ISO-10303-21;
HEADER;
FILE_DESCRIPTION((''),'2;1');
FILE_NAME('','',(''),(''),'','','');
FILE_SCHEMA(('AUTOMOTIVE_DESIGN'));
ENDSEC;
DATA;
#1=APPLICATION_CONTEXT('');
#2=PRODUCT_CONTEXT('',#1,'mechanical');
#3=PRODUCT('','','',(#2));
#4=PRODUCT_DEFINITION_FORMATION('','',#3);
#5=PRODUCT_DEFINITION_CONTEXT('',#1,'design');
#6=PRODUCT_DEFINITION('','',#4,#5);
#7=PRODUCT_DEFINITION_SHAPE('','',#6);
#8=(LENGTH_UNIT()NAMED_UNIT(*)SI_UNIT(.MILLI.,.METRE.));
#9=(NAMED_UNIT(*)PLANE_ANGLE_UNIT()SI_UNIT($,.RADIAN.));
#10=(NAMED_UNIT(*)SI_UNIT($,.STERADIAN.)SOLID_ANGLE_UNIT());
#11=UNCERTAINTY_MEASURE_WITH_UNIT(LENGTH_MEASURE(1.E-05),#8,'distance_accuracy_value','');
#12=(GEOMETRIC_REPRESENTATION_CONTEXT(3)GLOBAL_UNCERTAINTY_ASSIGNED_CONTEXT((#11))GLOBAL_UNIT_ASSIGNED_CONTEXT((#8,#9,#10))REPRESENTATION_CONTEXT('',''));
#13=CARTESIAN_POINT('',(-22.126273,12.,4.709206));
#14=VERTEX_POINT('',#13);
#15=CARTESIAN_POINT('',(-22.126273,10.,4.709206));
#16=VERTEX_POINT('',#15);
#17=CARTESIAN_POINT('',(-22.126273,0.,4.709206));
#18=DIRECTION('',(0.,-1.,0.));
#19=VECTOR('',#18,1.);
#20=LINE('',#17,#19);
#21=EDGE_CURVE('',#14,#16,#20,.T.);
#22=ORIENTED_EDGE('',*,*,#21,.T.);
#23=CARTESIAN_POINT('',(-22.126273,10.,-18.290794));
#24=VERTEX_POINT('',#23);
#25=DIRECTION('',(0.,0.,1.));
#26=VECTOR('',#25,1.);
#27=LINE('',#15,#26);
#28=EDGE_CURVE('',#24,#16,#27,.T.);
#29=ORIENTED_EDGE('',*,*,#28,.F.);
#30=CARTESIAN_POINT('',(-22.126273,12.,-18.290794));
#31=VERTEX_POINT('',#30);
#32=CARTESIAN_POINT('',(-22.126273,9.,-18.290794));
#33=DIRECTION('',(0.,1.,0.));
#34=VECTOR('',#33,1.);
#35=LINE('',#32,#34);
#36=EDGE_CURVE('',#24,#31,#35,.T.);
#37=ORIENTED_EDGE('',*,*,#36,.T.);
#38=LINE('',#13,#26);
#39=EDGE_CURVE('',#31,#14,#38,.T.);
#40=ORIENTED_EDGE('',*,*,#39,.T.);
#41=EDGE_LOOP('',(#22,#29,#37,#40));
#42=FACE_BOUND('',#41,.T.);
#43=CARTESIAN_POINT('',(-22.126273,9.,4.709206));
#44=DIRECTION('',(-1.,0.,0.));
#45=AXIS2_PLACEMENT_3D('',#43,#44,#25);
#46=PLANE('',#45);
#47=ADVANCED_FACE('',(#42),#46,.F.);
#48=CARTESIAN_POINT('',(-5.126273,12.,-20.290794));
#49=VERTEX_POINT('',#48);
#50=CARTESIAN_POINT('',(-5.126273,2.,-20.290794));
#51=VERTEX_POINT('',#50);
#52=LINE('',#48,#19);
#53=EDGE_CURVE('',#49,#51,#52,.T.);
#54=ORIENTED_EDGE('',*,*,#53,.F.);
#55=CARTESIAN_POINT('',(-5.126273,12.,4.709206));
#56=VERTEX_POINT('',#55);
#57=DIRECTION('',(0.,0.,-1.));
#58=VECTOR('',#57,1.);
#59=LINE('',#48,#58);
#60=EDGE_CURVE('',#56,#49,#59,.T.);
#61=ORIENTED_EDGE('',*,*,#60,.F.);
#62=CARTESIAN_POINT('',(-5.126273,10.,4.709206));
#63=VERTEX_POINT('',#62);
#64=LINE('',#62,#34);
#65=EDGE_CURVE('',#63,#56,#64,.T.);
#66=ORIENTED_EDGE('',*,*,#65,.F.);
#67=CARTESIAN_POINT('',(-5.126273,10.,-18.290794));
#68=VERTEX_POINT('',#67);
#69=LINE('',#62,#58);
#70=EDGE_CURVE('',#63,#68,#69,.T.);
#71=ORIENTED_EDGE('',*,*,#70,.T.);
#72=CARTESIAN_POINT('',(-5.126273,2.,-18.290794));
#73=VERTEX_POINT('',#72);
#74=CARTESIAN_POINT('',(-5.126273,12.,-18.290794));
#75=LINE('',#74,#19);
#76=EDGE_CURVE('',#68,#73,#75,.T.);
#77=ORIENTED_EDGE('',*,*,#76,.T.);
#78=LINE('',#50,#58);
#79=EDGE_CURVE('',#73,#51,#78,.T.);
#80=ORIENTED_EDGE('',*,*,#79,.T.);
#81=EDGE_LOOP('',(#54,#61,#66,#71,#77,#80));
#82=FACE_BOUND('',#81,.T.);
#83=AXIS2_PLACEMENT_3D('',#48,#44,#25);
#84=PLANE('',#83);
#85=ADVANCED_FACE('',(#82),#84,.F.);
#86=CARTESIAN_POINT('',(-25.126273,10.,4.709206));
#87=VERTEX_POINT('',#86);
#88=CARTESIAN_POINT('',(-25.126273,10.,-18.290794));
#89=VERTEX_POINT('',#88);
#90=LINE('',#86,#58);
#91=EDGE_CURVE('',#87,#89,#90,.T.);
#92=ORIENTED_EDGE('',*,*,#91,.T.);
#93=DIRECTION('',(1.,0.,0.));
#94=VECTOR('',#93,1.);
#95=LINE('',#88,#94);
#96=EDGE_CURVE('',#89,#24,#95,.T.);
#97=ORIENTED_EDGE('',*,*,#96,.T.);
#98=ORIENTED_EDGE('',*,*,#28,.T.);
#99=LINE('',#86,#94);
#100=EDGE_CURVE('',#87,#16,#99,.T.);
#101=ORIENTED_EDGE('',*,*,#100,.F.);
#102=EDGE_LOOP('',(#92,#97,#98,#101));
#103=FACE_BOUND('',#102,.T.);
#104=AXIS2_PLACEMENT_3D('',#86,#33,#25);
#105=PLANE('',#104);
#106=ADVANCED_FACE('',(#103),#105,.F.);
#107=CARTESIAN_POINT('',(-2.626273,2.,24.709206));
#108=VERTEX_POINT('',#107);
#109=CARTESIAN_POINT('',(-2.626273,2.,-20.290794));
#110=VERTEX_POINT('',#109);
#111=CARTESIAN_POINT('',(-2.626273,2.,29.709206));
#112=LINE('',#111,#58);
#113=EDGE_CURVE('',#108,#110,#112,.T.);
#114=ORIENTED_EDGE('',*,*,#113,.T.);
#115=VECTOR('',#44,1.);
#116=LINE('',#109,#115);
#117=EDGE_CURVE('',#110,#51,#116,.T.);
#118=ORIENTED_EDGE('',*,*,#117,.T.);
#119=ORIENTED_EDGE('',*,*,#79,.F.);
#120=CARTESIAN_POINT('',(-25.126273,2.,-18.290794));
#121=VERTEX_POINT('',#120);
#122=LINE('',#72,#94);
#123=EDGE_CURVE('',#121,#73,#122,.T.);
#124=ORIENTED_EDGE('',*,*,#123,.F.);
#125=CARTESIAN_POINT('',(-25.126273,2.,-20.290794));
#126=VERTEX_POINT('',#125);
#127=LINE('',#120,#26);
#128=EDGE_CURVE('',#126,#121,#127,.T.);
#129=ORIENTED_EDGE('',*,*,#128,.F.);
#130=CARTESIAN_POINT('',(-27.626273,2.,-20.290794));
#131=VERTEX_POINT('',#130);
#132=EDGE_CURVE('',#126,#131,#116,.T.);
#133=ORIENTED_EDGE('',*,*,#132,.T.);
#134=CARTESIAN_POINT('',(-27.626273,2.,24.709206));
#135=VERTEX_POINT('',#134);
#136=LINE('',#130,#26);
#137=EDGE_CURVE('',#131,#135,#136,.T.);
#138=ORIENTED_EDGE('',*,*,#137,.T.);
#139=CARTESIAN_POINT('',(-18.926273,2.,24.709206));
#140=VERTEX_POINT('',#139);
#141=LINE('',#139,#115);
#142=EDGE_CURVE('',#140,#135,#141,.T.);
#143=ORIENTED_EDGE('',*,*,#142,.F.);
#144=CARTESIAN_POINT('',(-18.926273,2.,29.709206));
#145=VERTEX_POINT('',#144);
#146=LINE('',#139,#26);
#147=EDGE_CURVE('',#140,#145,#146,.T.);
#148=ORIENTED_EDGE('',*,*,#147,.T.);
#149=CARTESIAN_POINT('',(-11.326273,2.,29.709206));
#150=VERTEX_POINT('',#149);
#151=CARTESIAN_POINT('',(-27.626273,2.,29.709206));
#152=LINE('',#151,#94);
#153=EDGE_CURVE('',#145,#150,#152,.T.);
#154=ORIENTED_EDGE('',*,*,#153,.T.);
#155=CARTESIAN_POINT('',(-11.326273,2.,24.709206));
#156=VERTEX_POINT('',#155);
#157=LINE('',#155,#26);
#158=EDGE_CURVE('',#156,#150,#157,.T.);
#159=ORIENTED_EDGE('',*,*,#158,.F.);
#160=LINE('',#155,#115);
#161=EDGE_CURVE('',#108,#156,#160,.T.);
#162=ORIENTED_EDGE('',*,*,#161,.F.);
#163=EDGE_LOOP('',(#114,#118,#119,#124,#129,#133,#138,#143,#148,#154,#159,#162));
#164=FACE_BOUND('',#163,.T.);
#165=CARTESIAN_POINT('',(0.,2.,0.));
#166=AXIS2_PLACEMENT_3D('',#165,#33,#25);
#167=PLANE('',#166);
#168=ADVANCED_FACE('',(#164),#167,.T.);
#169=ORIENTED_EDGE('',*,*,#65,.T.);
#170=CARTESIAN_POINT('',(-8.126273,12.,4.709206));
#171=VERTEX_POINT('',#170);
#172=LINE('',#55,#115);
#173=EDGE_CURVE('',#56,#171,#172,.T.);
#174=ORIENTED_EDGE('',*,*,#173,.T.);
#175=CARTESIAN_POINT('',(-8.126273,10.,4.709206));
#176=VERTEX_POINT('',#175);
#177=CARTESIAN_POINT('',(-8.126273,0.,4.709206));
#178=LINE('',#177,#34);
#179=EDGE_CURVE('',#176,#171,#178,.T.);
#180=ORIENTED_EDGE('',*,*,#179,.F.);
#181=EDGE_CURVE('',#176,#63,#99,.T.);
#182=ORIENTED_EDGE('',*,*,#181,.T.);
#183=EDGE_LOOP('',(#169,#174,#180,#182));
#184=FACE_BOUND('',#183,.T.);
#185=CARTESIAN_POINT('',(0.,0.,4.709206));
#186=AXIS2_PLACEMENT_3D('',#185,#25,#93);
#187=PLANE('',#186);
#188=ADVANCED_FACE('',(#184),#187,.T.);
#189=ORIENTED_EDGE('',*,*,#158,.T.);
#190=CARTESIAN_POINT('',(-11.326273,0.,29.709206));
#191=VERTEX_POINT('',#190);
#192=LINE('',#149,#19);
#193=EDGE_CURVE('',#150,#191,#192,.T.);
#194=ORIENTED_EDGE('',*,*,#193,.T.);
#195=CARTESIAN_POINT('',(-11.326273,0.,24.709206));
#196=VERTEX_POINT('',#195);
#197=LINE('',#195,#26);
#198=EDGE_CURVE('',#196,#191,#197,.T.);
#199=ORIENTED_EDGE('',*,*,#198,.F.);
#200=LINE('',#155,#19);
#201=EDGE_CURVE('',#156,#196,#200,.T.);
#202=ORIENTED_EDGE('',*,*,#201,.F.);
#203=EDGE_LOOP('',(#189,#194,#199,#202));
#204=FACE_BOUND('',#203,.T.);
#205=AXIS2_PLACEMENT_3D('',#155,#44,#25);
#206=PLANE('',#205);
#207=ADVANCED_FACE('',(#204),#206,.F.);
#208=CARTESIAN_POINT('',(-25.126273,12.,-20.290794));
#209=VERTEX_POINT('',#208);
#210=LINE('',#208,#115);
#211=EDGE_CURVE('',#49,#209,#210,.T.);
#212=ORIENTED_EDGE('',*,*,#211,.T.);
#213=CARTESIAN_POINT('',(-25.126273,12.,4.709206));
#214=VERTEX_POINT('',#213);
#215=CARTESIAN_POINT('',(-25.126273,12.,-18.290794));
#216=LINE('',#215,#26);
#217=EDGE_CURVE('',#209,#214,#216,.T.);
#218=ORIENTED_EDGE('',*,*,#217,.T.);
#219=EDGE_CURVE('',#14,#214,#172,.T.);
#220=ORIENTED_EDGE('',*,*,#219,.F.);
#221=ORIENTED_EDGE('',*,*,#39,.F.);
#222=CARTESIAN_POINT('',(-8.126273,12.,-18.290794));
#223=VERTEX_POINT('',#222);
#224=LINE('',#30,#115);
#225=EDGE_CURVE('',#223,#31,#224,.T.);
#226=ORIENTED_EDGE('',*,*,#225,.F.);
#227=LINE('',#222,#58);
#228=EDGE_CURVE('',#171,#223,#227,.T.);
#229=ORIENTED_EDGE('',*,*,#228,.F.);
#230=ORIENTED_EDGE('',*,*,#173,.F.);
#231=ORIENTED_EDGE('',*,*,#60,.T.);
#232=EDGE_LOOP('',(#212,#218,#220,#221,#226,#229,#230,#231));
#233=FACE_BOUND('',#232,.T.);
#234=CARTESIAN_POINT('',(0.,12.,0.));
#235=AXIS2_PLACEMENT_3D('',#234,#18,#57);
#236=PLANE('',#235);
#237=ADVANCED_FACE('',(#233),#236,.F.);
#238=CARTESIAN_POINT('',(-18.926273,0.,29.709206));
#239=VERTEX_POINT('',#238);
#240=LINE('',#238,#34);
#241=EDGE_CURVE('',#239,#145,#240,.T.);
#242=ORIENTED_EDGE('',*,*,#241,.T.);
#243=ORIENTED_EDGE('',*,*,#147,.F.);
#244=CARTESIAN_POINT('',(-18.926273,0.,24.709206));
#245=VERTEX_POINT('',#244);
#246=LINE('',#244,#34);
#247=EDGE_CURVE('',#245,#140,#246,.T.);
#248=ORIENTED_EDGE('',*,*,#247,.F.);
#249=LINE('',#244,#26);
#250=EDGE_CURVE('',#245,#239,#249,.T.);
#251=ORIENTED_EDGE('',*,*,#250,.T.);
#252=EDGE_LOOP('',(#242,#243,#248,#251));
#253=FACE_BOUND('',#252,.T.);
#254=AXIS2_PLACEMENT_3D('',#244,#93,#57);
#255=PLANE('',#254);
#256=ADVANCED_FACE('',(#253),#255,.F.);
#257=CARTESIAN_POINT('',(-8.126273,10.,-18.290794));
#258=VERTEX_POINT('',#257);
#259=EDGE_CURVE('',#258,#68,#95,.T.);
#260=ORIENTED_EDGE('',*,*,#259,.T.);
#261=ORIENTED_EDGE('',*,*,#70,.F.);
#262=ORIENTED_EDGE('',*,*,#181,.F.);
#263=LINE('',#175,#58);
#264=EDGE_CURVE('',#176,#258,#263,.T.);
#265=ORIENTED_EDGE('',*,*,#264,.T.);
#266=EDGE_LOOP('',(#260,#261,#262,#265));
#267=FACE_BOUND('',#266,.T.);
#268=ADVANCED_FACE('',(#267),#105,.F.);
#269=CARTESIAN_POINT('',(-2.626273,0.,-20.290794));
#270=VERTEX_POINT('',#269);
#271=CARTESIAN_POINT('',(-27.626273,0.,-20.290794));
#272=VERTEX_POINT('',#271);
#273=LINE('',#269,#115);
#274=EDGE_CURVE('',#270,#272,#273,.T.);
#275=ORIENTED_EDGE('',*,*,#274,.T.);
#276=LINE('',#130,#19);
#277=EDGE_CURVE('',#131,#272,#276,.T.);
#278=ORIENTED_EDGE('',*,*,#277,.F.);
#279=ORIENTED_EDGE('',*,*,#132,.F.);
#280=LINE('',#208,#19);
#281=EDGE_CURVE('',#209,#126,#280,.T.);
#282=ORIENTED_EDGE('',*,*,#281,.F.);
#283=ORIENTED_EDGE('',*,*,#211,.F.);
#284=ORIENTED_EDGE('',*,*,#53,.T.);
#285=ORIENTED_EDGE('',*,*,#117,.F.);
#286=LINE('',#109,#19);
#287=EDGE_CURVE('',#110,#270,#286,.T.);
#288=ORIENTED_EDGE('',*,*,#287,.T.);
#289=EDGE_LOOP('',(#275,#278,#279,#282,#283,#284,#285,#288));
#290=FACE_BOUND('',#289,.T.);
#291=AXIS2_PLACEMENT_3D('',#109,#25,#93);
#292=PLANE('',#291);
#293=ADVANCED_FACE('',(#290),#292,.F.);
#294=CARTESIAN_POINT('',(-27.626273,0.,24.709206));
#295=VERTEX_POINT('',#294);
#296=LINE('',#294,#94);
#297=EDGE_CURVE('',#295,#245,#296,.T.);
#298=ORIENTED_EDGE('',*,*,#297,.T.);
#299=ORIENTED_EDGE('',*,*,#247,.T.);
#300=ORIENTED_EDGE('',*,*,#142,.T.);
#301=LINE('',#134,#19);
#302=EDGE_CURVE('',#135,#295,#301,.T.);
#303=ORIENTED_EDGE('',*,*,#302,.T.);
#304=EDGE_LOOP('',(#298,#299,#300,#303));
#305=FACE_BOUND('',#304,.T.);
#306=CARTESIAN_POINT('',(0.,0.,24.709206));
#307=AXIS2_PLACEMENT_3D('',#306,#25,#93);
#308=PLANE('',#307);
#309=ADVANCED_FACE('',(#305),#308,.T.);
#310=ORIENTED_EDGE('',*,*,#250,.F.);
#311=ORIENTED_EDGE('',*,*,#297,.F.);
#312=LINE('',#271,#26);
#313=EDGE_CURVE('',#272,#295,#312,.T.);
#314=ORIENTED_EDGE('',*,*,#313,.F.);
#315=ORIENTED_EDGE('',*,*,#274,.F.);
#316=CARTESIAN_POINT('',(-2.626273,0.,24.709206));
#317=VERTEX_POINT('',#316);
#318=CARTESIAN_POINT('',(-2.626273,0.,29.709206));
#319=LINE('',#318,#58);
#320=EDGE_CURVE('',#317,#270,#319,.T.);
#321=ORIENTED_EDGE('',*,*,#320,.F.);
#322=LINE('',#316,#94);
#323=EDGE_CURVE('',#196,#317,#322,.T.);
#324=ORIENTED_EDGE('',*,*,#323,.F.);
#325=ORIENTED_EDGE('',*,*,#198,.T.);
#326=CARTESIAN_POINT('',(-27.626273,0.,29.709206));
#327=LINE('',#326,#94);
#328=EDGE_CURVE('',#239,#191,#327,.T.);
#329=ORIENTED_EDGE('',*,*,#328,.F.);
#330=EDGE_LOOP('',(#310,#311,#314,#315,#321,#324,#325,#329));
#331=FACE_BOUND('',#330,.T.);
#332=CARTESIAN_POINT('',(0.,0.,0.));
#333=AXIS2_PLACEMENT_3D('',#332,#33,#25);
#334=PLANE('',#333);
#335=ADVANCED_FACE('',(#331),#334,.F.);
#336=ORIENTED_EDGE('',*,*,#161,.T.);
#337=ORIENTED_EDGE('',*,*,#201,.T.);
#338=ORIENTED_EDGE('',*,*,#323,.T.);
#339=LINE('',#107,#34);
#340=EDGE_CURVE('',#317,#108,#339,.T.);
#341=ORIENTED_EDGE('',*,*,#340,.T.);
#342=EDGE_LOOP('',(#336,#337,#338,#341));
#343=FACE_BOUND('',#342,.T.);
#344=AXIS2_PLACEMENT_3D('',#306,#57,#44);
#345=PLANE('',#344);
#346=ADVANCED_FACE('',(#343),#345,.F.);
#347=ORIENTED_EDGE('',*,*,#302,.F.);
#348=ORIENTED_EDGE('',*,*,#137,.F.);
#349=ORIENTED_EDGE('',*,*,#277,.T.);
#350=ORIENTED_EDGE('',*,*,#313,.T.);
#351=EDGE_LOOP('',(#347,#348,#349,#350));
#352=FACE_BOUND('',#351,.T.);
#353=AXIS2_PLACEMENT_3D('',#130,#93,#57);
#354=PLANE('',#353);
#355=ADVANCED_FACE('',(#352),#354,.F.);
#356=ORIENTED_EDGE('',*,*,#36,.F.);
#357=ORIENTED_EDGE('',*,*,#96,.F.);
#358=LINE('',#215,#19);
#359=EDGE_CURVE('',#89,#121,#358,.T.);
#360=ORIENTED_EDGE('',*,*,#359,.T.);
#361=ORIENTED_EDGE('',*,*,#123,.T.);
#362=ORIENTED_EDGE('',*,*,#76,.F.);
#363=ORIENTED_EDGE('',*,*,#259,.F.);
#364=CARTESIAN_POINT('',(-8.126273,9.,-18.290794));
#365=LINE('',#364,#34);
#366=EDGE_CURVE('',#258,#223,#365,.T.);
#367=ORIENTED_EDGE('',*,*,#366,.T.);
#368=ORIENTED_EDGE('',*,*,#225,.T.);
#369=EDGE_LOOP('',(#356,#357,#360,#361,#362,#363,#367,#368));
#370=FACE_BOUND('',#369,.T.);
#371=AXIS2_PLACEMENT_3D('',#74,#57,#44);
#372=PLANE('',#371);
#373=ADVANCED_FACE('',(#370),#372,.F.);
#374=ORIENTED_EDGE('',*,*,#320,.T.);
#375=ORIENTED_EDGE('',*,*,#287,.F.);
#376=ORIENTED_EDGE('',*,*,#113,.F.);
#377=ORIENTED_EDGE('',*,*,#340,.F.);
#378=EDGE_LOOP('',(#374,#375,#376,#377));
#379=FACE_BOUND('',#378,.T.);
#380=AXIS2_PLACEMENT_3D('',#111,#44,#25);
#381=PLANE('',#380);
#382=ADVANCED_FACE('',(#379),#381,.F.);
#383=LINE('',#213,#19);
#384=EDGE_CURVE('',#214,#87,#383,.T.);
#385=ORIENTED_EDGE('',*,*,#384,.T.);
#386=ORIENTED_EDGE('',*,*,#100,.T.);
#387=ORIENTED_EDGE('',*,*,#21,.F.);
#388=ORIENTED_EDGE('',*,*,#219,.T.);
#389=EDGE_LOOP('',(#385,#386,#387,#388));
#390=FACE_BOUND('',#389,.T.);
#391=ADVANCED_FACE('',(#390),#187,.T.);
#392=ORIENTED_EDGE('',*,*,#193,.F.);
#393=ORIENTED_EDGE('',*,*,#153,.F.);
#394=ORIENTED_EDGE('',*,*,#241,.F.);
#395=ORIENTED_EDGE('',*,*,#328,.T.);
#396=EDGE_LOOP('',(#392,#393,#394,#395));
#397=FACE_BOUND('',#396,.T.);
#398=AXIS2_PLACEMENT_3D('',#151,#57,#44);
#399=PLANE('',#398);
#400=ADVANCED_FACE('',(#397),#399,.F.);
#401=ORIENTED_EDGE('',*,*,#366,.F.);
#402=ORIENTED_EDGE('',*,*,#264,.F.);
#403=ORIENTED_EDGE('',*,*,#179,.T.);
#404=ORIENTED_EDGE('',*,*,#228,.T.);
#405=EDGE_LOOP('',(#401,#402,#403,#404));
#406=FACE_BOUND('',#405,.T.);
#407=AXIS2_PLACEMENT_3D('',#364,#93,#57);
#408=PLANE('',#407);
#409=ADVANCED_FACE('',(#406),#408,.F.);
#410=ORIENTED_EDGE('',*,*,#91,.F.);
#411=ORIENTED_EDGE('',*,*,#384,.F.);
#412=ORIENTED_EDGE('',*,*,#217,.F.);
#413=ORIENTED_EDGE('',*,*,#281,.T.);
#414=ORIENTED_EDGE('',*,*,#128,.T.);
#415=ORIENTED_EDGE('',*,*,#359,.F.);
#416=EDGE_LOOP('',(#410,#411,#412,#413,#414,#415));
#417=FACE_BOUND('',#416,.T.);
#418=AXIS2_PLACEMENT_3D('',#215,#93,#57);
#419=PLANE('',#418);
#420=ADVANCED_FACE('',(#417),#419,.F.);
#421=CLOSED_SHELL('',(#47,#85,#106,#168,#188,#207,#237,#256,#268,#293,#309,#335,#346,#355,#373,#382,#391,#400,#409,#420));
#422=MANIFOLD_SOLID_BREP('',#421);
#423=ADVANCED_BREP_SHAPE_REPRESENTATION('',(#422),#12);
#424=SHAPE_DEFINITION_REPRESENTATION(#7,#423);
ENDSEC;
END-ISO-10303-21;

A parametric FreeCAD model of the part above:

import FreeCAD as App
import Part
import Sketcher

V = App.Vector
Q = App.Units.Quantity


def add_polygon(sketch, points):
    """Adds a closed chain of lines whose ends are joined by coincident constraints."""
    first, n = sketch.GeometryCount, len(points)
    for a, b in zip(points, points[1:] + points[:1]):
        sketch.addGeometry(Part.LineSegment(App.Vector(*a, 0), App.Vector(*b, 0)), False)
    for i in range(n):
        sketch.addConstraint(Sketcher.Constraint("Coincident", first + i, 2, first + (i + 1) % n, 1))

doc = App.newDocument("Part")
body = doc.addObject("PartDesign::Body", "Body")

sketch1 = doc.addObject("Sketcher::SketchObject", "Sketch")
body.addObject(sketch1)
sketch1.AttachmentSupport = (doc.XZ_Plane, [""])
sketch1.MapMode = "FlatFace"
add_polygon(sketch1, [(-28, -20), (-28, 30), (-3, 30), (-3, -20)])
sketch1.addConstraint([
    Sketcher.Constraint("Vertical", 0),
    Sketcher.Constraint("Horizontal", 1),
    Sketcher.Constraint("Vertical", 2),
    Sketcher.Constraint("Horizontal", 3),
    Sketcher.Constraint("DistanceX", 1, 1, 1, 2, Q("25 mm")),
    Sketcher.Constraint("DistanceY", 0, 1, 0, 2, Q("50 mm")),
    Sketcher.Constraint("DistanceX", 0, 2, -1, 1, Q("27.626273 mm")),
    Sketcher.Constraint("DistanceY", -1, 1, 0, 2, Q("29.709206 mm")),
])
pad1 = doc.addObject("PartDesign::Pad", "Pad")
body.addObject(pad1)
pad1.Profile = sketch1
pad1.Length = 2
pad1.Reversed = True

sketch2 = doc.addObject("Sketcher::SketchObject", "Sketch001")
body.addObject(sketch2)
sketch2.AttachmentSupport = (doc.XZ_Plane, [""])
sketch2.MapMode = "FlatFace"
sketch2.AttachmentOffset = App.Placement(V(0, 0, -2), App.Rotation())
add_polygon(sketch2, [(-25.1, -20.3), (-25.1, -18.3), (-5.1, -18.3), (-5.1, -20.3)])
sketch2.addConstraint([
    Sketcher.Constraint("Vertical", 0),
    Sketcher.Constraint("Horizontal", 1),
    Sketcher.Constraint("Vertical", 2),
    Sketcher.Constraint("Horizontal", 3),
    Sketcher.Constraint("DistanceX", 1, 1, 1, 2, Q("20 mm")),
    Sketcher.Constraint("DistanceY", 0, 1, 0, 2, Q("2 mm")),
    Sketcher.Constraint("DistanceX", 0, 2, -1, 1, Q("25.126273 mm")),
    Sketcher.Constraint("DistanceY", 0, 2, -1, 1, Q("18.290794 mm")),
])
pad2 = doc.addObject("PartDesign::Pad", "Pad001")
body.addObject(pad2)
pad2.Profile = sketch2
pad2.Length = 10
pad2.Reversed = True

sketch3 = doc.addObject("Sketcher::SketchObject", "Sketch002")
body.addObject(sketch3)
sketch3.AttachmentSupport = (doc.XY_Plane, [""])
sketch3.MapMode = "FlatFace"
sketch3.AttachmentOffset = App.Placement(V(0, 0, -18.290794), App.Rotation())
add_polygon(sketch3, [(-25.1, 12), (-25.1, 10), (-5.1, 10), (-5.1, 12)])
sketch3.addConstraint([
    Sketcher.Constraint("Vertical", 0),
    Sketcher.Constraint("Horizontal", 1),
    Sketcher.Constraint("Vertical", 2),
    Sketcher.Constraint("Horizontal", 3),
    Sketcher.Constraint("DistanceX", 1, 1, 1, 2, Q("20 mm")),
    Sketcher.Constraint("DistanceY", 0, 2, 0, 1, Q("2 mm")),
    Sketcher.Constraint("DistanceY", -1, 1, 0, 2, Q("10 mm")),
    Sketcher.Constraint("DistanceX", 0, 2, -1, 1, Q("25.126273 mm")),
])
pad3 = doc.addObject("PartDesign::Pad", "Pad002")
body.addObject(pad3)
pad3.Profile = sketch3
pad3.Length = 23

sketch4 = doc.addObject("Sketcher::SketchObject", "Sketch003")
body.addObject(sketch4)
sketch4.AttachmentSupport = (doc.XZ_Plane, [""])
sketch4.MapMode = "FlatFace"
sketch4.AttachmentOffset = App.Placement(V(0, 0, -12), App.Rotation())
add_polygon(sketch4, [(-22, -18), (-22, 5), (-8, 5), (-8, -18)])
sketch4.addConstraint([
    Sketcher.Constraint("Vertical", 0),
    Sketcher.Constraint("Horizontal", 1),
    Sketcher.Constraint("Vertical", 2),
    Sketcher.Constraint("Horizontal", 3),
    Sketcher.Constraint("DistanceX", 1, 1, 1, 2, Q("14 mm")),
    Sketcher.Constraint("DistanceY", 0, 1, 0, 2, Q("23 mm")),
    Sketcher.Constraint("DistanceX", 0, 2, -1, 1, Q("22.126273 mm")),
    Sketcher.Constraint("DistanceY", -1, 1, 0, 2, Q("4.709206 mm")),
])
pocket1 = doc.addObject("PartDesign::Pocket", "Pocket")
body.addObject(pocket1)
pocket1.Profile = sketch4
pocket1.Length = 3
pocket1.Reversed = True

sketch5 = doc.addObject("Sketcher::SketchObject", "Sketch004")
body.addObject(sketch5)
sketch5.AttachmentSupport = (doc.XY_Plane, [""])
sketch5.MapMode = "FlatFace"
sketch5.AttachmentOffset = App.Placement(V(0, 0, 29.709206), App.Rotation())
add_polygon(sketch5, [(-11.3, 2), (-11.3, 0), (-2.6, 0), (-2.6, 2)])
add_polygon(sketch5, [(-27.6, 2), (-27.6, 0), (-18.9, 0), (-18.9, 2)])
sketch5.addConstraint([
    Sketcher.Constraint("Vertical", 0),
    Sketcher.Constraint("Horizontal", 1),
    Sketcher.Constraint("Vertical", 2),
    Sketcher.Constraint("Horizontal", 3),
    Sketcher.Constraint("Vertical", 4),
    Sketcher.Constraint("Horizontal", 5),
    Sketcher.Constraint("Vertical", 6),
    Sketcher.Constraint("Horizontal", 7),
    Sketcher.Constraint("PointOnObject", 0, 2, -1),
    Sketcher.Constraint("PointOnObject", 4, 2, -1),
    Sketcher.Constraint("Horizontal", 3, 2, 6, 2),
    Sketcher.Constraint("Equal", 3, 5),
    Sketcher.Constraint("DistanceY", 0, 2, 0, 1, Q("2 mm")),
    Sketcher.Constraint("DistanceX", 1, 1, 1, 2, Q("8.7 mm")),
    Sketcher.Constraint("DistanceX", 4, 2, 1, 2, Q("25 mm")),
    Sketcher.Constraint("DistanceX", 0, 2, -1, 1, Q("11.326273 mm")),
])
pocket2 = doc.addObject("PartDesign::Pocket", "Pocket001")
body.addObject(pocket2)
pocket2.Profile = sketch5
pocket2.Length = 5

doc.recompute()
